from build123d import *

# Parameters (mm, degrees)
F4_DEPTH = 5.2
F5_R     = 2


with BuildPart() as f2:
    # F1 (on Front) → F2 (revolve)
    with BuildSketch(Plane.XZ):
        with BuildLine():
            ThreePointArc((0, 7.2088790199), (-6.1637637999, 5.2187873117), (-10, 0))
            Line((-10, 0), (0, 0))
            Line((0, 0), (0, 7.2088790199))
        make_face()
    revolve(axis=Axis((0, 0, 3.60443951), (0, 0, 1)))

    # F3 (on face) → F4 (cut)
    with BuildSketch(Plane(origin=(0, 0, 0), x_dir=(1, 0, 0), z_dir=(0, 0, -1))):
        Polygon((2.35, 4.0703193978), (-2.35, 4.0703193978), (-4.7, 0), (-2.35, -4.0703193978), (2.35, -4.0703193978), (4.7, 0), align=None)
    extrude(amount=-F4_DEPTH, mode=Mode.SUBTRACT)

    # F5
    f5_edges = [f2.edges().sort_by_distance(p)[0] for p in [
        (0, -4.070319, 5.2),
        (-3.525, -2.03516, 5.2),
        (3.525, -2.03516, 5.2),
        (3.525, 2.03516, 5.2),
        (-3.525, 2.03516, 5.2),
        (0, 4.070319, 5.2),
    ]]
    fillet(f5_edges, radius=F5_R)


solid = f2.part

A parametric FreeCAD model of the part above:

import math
import FreeCAD as App
import Part
import Sketcher
Q = App.Units.Quantity


def edges_at(feature, points):
    """Names of the edges that pass closest to the given points."""
    edges = feature.Shape.Edges
    near = lambda p: min(range(len(edges)), key=lambda i: edges[i].distToShape(Part.Vertex(*p))[0])
    return sorted({f"Edge{near(p) + 1}" for p in points})

doc = App.newDocument("Part")
body = doc.addObject("PartDesign::Body", "Body")

sketch1 = doc.addObject("Sketcher::SketchObject", "Sketch")
body.addObject(sketch1)
sketch1.AttachmentSupport = (doc.XZ_Plane, [""])
sketch1.MapMode = "FlatFace"
sketch1.addGeometry([
    Part.ArcOfCircle(Part.Circle(App.Vector(0, -3.331452, 0), App.Vector(0, 0, 1), 10.540331), math.radians(90), math.radians(161.574755)),
    Part.LineSegment(App.Vector(-10, 0, 0), App.Vector(0, 0, 0)),
    Part.LineSegment(App.Vector(0, 0, 0), App.Vector(0, 7.208879, 0)),
], False)
sketch1.addConstraint([
    Sketcher.Constraint("Coincident", 0, 2, 1, 1),
    Sketcher.Constraint("Coincident", 1, 2, 2, 1),
    Sketcher.Constraint("Coincident", 2, 2, 0, 1),
    Sketcher.Constraint("Horizontal", 1),
    Sketcher.Constraint("Vertical", 2),
    Sketcher.Constraint("Coincident", 1, 2, -1, 1),
    Sketcher.Constraint("PointOnObject", 0, 3, -2),
    Sketcher.Constraint("DistanceX", 1, 1, 1, 2, 10.0),
    Sketcher.Constraint("Radius", 0, 10.540331),
])
revolution = doc.addObject("PartDesign::Revolution", "Revolution")
body.addObject(revolution)
revolution.Profile = sketch1
revolution.ReferenceAxis = (sketch1, ["V_Axis"])
revolution.Angle = 360

sketch2 = doc.addObject("Sketcher::SketchObject", "Sketch001")
body.addObject(sketch2)
sketch2.AttachmentSupport = (doc.XY_Plane, [""])
sketch2.MapMode = "FlatFace"
sketch2.addGeometry([
    Part.LineSegment(App.Vector(2.35, -4.070319, 0), App.Vector(-2.35, -4.070319, 0)),
    Part.LineSegment(App.Vector(-2.35, -4.070319, 0), App.Vector(-4.7, 0, 0)),
    Part.LineSegment(App.Vector(-4.7, 0, 0), App.Vector(-2.35, 4.070319, 0)),
    Part.LineSegment(App.Vector(-2.35, 4.070319, 0), App.Vector(2.35, 4.070319, 0)),
    Part.LineSegment(App.Vector(2.35, 4.070319, 0), App.Vector(4.7, 0, 0)),
    Part.LineSegment(App.Vector(4.7, 0, 0), App.Vector(2.35, -4.070319, 0)),
], False)
sketch2.addConstraint([
    Sketcher.Constraint("Coincident", 0, 2, 1, 1),
    Sketcher.Constraint("Coincident", 1, 2, 2, 1),
    Sketcher.Constraint("Coincident", 2, 2, 3, 1),
    Sketcher.Constraint("Coincident", 3, 2, 4, 1),
    Sketcher.Constraint("Coincident", 4, 2, 5, 1),
    Sketcher.Constraint("Coincident", 5, 2, 0, 1),
    Sketcher.Constraint("Horizontal", 0),
    Sketcher.Constraint("Horizontal", 3),
    Sketcher.Constraint("Symmetric", 0, 2, 3, 2, -1, 1),
    Sketcher.Constraint("Symmetric", 1, 2, 4, 2, -1, 1),
    Sketcher.Constraint("PointOnObject", 1, 2, -1),
    Sketcher.Constraint("Parallel", 2, 5),
    Sketcher.Constraint("Vertical", 0, 2, 2, 2),
    Sketcher.Constraint("Angle", 1, Q("120 deg")),
    Sketcher.Constraint("DistanceX", 0, 2, 0, 1, 4.7),
    Sketcher.Constraint("Distance", 1, 4.7),
])
pocket1 = doc.addObject("PartDesign::Pocket", "Pocket")
body.addObject(pocket1)
pocket1.Profile = sketch2
pocket1.Length = 5.2
pocket1.Reversed = True
doc.recompute()

fillet = doc.addObject("PartDesign::Fillet", "Fillet")
body.addObject(fillet)
fillet.Base = (pocket1, edges_at(pocket1, [
    (0, -4.07, 5.2),
    (-3.525, -2.035, 5.2),
    (3.525, -2.035, 5.2),
    (3.525, 2.035, 5.2),
    (-3.525, 2.035, 5.2),
    (0, 4.07, 5.2),
]))
fillet.Radius = 2

doc.recompute()
